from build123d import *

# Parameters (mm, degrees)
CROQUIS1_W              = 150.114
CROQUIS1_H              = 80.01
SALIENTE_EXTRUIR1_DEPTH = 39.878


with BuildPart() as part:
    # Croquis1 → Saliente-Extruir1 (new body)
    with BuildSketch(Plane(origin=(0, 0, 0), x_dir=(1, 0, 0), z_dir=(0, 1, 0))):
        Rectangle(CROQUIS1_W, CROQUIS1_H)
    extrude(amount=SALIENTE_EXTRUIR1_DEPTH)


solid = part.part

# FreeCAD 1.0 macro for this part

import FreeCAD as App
import Part
import Sketcher
Q = App.Units.Quantity

doc = App.newDocument("Part")
body = doc.addObject("PartDesign::Body", "Body")

# Sketch on XZ plane
sketch1 = body.newObject("Sketcher::SketchObject", "Sketch")
sketch1.AttachmentSupport = (doc.getObject("XZ_Plane"), [""])
sketch1.MapMode = "FlatFace"
sketch1.addGeometry(Part.LineSegment(App.Vector(-75, -40, 0), App.Vector(-75, 40, 0)), False)
sketch1.addGeometry(Part.LineSegment(App.Vector(-75, 40, 0), App.Vector(75, 40, 0)), False)
sketch1.addGeometry(Part.LineSegment(App.Vector(75, 40, 0), App.Vector(75, -40, 0)), False)
sketch1.addGeometry(Part.LineSegment(App.Vector(75, -40, 0), App.Vector(-75, -40, 0)), False)
sketch1.addConstraint(Sketcher.Constraint("Coincident", 0, 2, 1, 1))
sketch1.addConstraint(Sketcher.Constraint("Coincident", 1, 2, 2, 1))
sketch1.addConstraint(Sketcher.Constraint("Coincident", 2, 2, 3, 1))
sketch1.addConstraint(Sketcher.Constraint("Coincident", 3, 2, 0, 1))
sketch1.addConstraint(Sketcher.Constraint("Vertical", 0))
sketch1.addConstraint(Sketcher.Constraint("Horizontal", 1))
sketch1.addConstraint(Sketcher.Constraint("Vertical", 2))
sketch1.addConstraint(Sketcher.Constraint("Horizontal", 3))
sketch1.addConstraint(Sketcher.Constraint("Symmetric", 0, 2, 2, 2, -1, 1))
sketch1.addConstraint(Sketcher.Constraint("DistanceX", 1, 1, 1, 2, Q("5.91 in")))
sketch1.addConstraint(Sketcher.Constraint("DistanceY", 0, 1, 0, 2, Q("3.15 in")))
pad1 = body.newObject("PartDesign::Pad", "Pad")
pad1.Profile = sketch1
pad1.Length = Q("1.57 in")
pad1.Reversed = True

doc.recompute()
